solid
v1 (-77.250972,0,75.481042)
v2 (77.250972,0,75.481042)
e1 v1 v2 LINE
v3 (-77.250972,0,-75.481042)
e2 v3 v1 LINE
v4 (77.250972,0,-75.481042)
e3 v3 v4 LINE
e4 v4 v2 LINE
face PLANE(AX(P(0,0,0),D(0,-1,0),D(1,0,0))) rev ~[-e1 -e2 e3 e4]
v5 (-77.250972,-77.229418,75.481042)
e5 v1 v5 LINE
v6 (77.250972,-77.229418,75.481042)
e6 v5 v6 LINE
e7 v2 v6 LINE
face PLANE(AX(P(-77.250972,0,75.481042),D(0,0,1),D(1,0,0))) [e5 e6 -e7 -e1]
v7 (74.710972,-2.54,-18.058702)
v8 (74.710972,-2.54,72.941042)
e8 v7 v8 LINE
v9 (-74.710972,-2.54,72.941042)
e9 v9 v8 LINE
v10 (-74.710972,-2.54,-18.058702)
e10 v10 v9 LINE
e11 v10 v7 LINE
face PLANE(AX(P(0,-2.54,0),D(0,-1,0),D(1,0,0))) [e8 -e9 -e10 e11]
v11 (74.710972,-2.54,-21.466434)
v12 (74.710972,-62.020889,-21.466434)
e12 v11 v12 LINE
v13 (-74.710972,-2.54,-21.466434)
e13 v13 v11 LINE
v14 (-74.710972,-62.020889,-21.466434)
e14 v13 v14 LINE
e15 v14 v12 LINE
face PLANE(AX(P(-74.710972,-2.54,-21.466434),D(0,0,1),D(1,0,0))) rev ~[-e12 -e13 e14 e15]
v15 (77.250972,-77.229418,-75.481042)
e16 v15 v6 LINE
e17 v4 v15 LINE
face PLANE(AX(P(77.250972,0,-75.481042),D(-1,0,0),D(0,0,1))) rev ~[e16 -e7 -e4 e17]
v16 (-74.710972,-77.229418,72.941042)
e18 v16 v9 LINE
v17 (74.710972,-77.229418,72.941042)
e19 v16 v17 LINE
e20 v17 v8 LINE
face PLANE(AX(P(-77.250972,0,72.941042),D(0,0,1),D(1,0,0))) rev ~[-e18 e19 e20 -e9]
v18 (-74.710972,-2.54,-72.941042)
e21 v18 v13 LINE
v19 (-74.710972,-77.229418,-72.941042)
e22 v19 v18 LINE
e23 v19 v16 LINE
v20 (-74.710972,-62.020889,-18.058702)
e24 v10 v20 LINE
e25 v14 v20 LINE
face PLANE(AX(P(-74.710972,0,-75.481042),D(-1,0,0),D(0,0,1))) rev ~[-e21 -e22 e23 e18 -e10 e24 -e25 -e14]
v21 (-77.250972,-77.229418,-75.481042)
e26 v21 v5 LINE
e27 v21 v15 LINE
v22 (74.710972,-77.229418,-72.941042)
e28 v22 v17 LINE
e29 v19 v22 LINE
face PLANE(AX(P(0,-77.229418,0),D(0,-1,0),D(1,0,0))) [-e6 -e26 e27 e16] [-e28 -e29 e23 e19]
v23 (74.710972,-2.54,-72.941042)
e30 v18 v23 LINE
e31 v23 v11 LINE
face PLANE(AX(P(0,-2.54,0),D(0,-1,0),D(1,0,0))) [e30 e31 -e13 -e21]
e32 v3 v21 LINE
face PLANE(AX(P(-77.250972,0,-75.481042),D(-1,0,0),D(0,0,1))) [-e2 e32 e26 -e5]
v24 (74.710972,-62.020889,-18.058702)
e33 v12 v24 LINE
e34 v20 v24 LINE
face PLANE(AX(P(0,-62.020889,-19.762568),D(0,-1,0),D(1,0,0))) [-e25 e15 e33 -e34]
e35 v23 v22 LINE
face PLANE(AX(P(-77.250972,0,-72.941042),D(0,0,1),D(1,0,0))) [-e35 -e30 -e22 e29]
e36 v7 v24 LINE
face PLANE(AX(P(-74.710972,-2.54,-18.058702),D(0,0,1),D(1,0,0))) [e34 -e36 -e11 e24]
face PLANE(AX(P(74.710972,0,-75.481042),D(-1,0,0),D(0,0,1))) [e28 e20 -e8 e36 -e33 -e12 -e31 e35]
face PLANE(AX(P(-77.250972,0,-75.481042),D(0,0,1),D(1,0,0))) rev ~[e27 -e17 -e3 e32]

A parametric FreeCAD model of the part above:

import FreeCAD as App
import Part
import Sketcher
Q = App.Units.Quantity


def faces_at(feature, points):
    """Names of the faces that lie closest to the given points."""
    faces = feature.Shape.Faces
    near = lambda p: min(range(len(faces)), key=lambda i: faces[i].distToShape(Part.Vertex(*p))[0])
    return sorted({f"Face{near(p) + 1}" for p in points})

doc = App.newDocument("Part")
body = doc.addObject("PartDesign::Body", "Body")

sketch1 = body.newObject("Sketcher::SketchObject", "Sketch")
sketch1.AttachmentSupport = (doc.getObject("XZ_Plane"), [""])
sketch1.MapMode = "FlatFace"
sketch1.addGeometry([
    Part.LineSegment(App.Vector(-77, 75, 0), App.Vector(-77, -75, 0)),
    Part.LineSegment(App.Vector(-77, -75, 0), App.Vector(77, -75, 0)),
    Part.LineSegment(App.Vector(77, -75, 0), App.Vector(77, 75, 0)),
    Part.LineSegment(App.Vector(77, 75, 0), App.Vector(-77, 75, 0)),
], False)
sketch1.addConstraint([
    Sketcher.Constraint("Coincident", 0, 2, 1, 1),
    Sketcher.Constraint("Coincident", 1, 2, 2, 1),
    Sketcher.Constraint("Coincident", 2, 2, 3, 1),
    Sketcher.Constraint("Coincident", 3, 2, 0, 1),
    Sketcher.Constraint("Vertical", 0),
    Sketcher.Constraint("Horizontal", 1),
    Sketcher.Constraint("Vertical", 2),
    Sketcher.Constraint("Horizontal", 3),
    Sketcher.Constraint("Symmetric", 0, 2, 2, 2, -1, 1),
    Sketcher.Constraint("DistanceX", 1, 1, 1, 2, Q("154.501944 mm")),
    Sketcher.Constraint("DistanceY", 0, 2, 0, 1, Q("150.962084 mm")),
])
pad1 = body.newObject("PartDesign::Pad", "Pad")
pad1.Profile = sketch1
pad1.Length = 77.229418
doc.recompute()

thickness = body.newObject("PartDesign::Thickness", "Thickness")
thickness.Base = (pad1, faces_at(pad1, [(0, -77.229, 0)]))
thickness.Value = Q("0.1 in")
thickness.Reversed = True
thickness.Join = "Arc"

sketch2 = body.newObject("Sketcher::SketchObject", "Sketch001")
sketch2.AttachmentSupport = (doc.getObject("XZ_Plane"), [""])
sketch2.MapMode = "FlatFace"
sketch2.AttachmentOffset = App.Placement(App.Vector(0, 0, 0.1 * 25.4), App.Rotation())
sketch2.addGeometry([
    Part.LineSegment(App.Vector(-74.7, -18.1, 0), App.Vector(-74.7, -21.5, 0)),
    Part.LineSegment(App.Vector(-74.7, -21.5, 0), App.Vector(74.7, -21.5, 0)),
    Part.LineSegment(App.Vector(74.7, -21.5, 0), App.Vector(74.7, -18.1, 0)),
    Part.LineSegment(App.Vector(74.7, -18.1, 0), App.Vector(-74.7, -18.1, 0)),
], False)
sketch2.addConstraint([
    Sketcher.Constraint("Coincident", 0, 2, 1, 1),
    Sketcher.Constraint("Coincident", 1, 2, 2, 1),
    Sketcher.Constraint("Coincident", 2, 2, 3, 1),
    Sketcher.Constraint("Coincident", 3, 2, 0, 1),
    Sketcher.Constraint("Vertical", 0),
    Sketcher.Constraint("Horizontal", 1),
    Sketcher.Constraint("Vertical", 2),
    Sketcher.Constraint("Horizontal", 3),
    Sketcher.Constraint("DistanceY", 0, 2, 0, 1, Q("3.407732 mm")),
    Sketcher.Constraint("DistanceY", 2, 2, -1, 1, Q("18.058702 mm")),
    Sketcher.Constraint("DistanceX", 1, 1, 1, 2, Q("149.421944 mm")),
    Sketcher.Constraint("DistanceX", 0, 2, -1, 1, Q("74.710972 mm")),
])
pad2 = body.newObject("PartDesign::Pad", "Pad001")
pad2.Profile = sketch2
pad2.Length = 59.480889

doc.recompute()
